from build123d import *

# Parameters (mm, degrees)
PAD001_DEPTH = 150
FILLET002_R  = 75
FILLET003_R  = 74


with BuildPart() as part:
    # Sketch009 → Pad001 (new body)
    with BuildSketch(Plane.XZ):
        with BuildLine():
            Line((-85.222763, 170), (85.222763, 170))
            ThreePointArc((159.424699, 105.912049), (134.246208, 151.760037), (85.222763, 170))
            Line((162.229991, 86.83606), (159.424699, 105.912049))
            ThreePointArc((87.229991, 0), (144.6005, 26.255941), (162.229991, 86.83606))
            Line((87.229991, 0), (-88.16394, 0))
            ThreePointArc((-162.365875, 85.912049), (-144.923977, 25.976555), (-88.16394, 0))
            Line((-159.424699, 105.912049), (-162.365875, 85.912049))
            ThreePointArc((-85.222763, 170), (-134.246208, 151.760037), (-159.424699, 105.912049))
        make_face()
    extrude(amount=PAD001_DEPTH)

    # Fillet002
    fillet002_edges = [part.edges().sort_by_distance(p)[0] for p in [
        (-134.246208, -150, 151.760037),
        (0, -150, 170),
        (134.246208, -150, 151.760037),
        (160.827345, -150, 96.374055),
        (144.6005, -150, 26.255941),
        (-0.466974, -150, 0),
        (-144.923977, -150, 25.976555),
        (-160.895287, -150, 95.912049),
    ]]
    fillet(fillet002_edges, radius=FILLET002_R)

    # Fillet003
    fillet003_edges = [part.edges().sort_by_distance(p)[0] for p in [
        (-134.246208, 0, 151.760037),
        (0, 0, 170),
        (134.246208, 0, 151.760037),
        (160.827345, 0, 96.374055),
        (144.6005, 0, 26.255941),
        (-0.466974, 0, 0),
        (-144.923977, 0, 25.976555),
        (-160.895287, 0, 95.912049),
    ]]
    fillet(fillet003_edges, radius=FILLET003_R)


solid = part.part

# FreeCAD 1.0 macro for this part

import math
import FreeCAD as App
import Part
import Sketcher
from FreeCAD import Vector


def edges_at(feature, points):
    """Names of the edges that pass closest to the given points."""
    edges = feature.Shape.Edges
    near = lambda p: min(range(len(edges)), key=lambda i: edges[i].distToShape(Part.Vertex(*p))[0])
    return sorted({f"Edge{near(p) + 1}" for p in points})

doc = App.newDocument("Part")
params = doc.addObject("Spreadsheet::Sheet", "Params")
for row, (alias, value) in enumerate([
    ("sketch1_radius", "75 mm"),
    ("sketch1_width", "75 mm"),
    ("pad1_length", "150 mm"),
    ("fillet_radius", "75 mm"),
    ("fillet2_radius", "74 mm"),
], start=1):
    params.set(f"A{row}", alias)
    params.set(f"B{row}", "=" + value)
    params.setAlias(f"B{row}", alias)

body = doc.addObject("PartDesign::Body", "Body")

sketch1 = doc.addObject("Sketcher::SketchObject", "Sketch")
body.addObject(sketch1)
sketch1.AttachmentSupport = (doc.XZ_Plane, [""])
sketch1.MapMode = "FlatFace"
sketch1.addGeometry(Part.LineSegment(Vector(85, 170, 0), Vector(-85, 170, 0)), False)
sketch1.addGeometry(Part.ArcOfCircle(Part.Circle(Vector(-85, 95, 0), Vector(0, 0, 1), 75), math.radians(90), math.radians(172)), False)
sketch1.addGeometry(Part.LineSegment(Vector(-159, 106, 0), Vector(-162, 86, 0)), False)
sketch1.addGeometry(Part.ArcOfCircle(Part.Circle(Vector(-88, 75, 0), Vector(0, 0, 1), 75), math.radians(172), math.radians(270)), False)
sketch1.addGeometry(Part.LineSegment(Vector(-88, 0, 0), Vector(87, 0, 0)), False)
sketch1.addGeometry(Part.ArcOfCircle(Part.Circle(Vector(87, 76, 0), Vector(0, 0, 1), 76), math.radians(-90), math.radians(8)), False)
sketch1.addGeometry(Part.LineSegment(Vector(162, 87, 0), Vector(159, 106, 0)), False)
sketch1.addGeometry(Part.ArcOfCircle(Part.Circle(Vector(85, 95, 0), Vector(0, 0, 1), 75), math.radians(8), math.radians(90)), False)
sketch1.addConstraint(Sketcher.Constraint("Tangent", 0, 2, 1, 1))
sketch1.addConstraint(Sketcher.Constraint("Tangent", 1, 2, 2, 1))
sketch1.addConstraint(Sketcher.Constraint("Tangent", 2, 2, 3, 1))
sketch1.addConstraint(Sketcher.Constraint("Tangent", 3, 2, 4, 1))
sketch1.addConstraint(Sketcher.Constraint("Tangent", 4, 2, 5, 1))
sketch1.addConstraint(Sketcher.Constraint("Tangent", 5, 2, 6, 1))
sketch1.addConstraint(Sketcher.Constraint("Tangent", 6, 2, 7, 1))
sketch1.addConstraint(Sketcher.Constraint("Tangent", 7, 2, 0, 1))
sketch1.addConstraint(Sketcher.Constraint("Horizontal", 0))
sketch1.addConstraint(Sketcher.Constraint("Horizontal", 4))
sketch1.addConstraint(Sketcher.Constraint("Equal", 1, 7))
sketch1.addConstraint(Sketcher.Constraint("Symmetric", 1, 2, 6, 2, -2))
sketch1.addConstraint(Sketcher.Constraint("PointOnObject", 3, 2, -1))
sketch1.addConstraint(Sketcher.Constraint("Radius", 3, 75.0))
sketch1.addConstraint(Sketcher.Constraint("DistanceY", -1, 1, 0, 2, 170.0))
sketch1.addConstraint(Sketcher.Constraint("DistanceY", 2, 2, 1, 2, 20.0))
sketch1.addConstraint(Sketcher.Constraint("DistanceX", 5, 3, 5, 2, 75.0))
sketch1.addConstraint(Sketcher.Constraint("Radius", 5, 75.806649))
sketch1.addConstraint(Sketcher.Constraint("DistanceX", 4, 1, 4, 2, 175.393931))
sketch1.setExpression("Constraints[13]", "Params.sketch1_radius")
sketch1.setExpression("Constraints[16]", "Params.sketch1_width")
pad1 = doc.addObject("PartDesign::Pad", "Pad")
body.addObject(pad1)
pad1.Profile = sketch1
pad1.setExpression("Length", "Params.pad1_length")
doc.recompute()

fillet = doc.addObject("PartDesign::Fillet", "Fillet")
body.addObject(fillet)
fillet.Base = (pad1, edges_at(pad1, [
    (-134.246, -150, 151.76),
    (0, -150, 170),
    (134.246, -150, 151.76),
    (160.827, -150, 96.374),
    (144.601, -150, 26.256),
    (-0.467, -150, 0),
    (-144.924, -150, 25.977),
    (-160.895, -150, 95.912),
]))
fillet.setExpression("Radius", "Params.fillet_radius")
doc.recompute()

fillet2 = doc.addObject("PartDesign::Fillet", "Fillet001")
body.addObject(fillet2)
fillet2.Base = (fillet, edges_at(fillet, [
    (-134.246, 0, 151.76),
    (0, 0, 170),
    (134.246, 0, 151.76),
    (160.827, 0, 96.374),
    (144.601, 0, 26.256),
    (-0.467, 0, 0),
    (-144.924, 0, 25.977),
    (-160.895, 0, 95.912),
]))
fillet2.setExpression("Radius", "Params.fillet2_radius")

doc.recompute()
